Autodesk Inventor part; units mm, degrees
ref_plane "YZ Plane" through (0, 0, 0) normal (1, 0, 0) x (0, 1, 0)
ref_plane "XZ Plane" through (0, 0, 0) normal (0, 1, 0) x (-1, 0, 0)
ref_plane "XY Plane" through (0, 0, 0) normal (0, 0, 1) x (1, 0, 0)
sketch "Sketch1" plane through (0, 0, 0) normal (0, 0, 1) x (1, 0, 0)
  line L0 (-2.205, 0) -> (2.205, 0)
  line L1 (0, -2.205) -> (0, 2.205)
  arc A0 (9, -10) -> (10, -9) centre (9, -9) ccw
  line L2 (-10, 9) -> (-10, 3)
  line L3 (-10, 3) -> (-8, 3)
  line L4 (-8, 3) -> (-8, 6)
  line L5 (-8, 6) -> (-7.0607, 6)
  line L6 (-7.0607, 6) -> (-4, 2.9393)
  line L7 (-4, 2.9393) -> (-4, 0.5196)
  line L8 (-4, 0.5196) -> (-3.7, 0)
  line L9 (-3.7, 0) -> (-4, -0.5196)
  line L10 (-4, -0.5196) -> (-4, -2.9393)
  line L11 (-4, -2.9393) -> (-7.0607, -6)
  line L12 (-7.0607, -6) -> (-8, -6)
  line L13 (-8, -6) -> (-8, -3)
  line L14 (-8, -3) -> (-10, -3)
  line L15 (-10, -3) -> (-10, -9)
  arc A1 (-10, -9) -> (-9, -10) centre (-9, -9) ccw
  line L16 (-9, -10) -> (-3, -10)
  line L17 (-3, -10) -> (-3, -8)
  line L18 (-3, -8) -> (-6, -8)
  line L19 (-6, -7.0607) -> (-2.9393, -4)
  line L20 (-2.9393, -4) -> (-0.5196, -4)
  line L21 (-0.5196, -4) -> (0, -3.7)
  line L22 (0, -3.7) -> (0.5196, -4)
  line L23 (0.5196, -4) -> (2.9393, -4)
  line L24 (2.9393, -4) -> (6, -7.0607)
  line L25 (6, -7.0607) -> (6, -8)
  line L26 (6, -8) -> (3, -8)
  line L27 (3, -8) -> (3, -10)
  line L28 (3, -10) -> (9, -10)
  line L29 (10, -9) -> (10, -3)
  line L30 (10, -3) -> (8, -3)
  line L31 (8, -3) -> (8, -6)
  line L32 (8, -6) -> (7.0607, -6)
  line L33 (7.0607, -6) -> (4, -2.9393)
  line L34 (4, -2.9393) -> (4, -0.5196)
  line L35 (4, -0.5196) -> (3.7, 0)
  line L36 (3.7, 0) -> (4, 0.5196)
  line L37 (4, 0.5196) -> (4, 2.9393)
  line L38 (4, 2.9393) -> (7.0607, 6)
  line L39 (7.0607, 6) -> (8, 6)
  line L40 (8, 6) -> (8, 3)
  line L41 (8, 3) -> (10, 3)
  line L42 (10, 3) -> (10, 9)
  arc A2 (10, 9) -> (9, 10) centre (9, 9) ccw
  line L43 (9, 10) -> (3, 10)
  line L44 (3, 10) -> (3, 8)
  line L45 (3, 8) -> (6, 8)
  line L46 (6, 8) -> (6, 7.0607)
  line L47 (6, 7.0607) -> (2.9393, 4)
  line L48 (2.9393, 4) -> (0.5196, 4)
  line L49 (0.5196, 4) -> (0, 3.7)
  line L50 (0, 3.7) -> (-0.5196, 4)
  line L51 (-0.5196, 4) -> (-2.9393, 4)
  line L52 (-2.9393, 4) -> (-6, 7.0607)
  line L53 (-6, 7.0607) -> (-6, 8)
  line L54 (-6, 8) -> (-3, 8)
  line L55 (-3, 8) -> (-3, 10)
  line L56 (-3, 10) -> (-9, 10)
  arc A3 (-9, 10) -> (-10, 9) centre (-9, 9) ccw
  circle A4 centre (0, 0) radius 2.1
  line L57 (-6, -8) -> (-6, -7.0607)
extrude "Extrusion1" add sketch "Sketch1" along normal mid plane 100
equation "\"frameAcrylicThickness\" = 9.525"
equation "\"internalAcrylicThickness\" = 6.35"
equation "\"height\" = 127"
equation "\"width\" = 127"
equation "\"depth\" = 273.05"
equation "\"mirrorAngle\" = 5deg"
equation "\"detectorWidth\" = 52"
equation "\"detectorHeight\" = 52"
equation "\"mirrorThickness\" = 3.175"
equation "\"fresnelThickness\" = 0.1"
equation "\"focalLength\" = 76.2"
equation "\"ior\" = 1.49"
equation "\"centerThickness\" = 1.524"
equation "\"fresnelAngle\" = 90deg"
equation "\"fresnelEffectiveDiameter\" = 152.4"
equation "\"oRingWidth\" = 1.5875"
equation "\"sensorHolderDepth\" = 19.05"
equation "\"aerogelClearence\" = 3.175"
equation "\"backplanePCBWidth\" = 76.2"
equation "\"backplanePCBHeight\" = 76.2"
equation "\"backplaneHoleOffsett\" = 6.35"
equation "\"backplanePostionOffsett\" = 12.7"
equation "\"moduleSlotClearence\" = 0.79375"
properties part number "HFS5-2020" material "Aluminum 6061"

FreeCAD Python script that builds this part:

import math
import FreeCAD as App
import Part
import Sketcher

V = App.Vector
Q = App.Units.Quantity

doc = App.newDocument("Part")
body = doc.addObject("PartDesign::Body", "Body")

sketch1 = body.newObject("Sketcher::SketchObject", "Sketch")
sketch1.AttachmentSupport = (doc.getObject("XY_Plane"), [""])
sketch1.MapMode = "FlatFace"
sketch1.addGeometry(Part.LineSegment(V(3, -10, 0), V(9, -10, 0)), False)
sketch1.addGeometry(Part.ArcOfCircle(Part.Circle(V(9, -9, 0), V(0, 0, 1), 1), math.radians(-90), math.radians(0)), False)
sketch1.addGeometry(Part.LineSegment(V(10, -9, 0), V(10, -3, 0)), False)
sketch1.addGeometry(Part.LineSegment(V(10, -3, 0), V(8, -3, 0)), False)
sketch1.addGeometry(Part.LineSegment(V(8, -3, 0), V(8, -6, 0)), False)
sketch1.addGeometry(Part.LineSegment(V(8, -6, 0), V(7.1, -6, 0)), False)
sketch1.addGeometry(Part.LineSegment(V(7.1, -6, 0), V(4, -2.9, 0)), False)
sketch1.addGeometry(Part.LineSegment(V(4, -2.9, 0), V(4, -0.5, 0)), False)
sketch1.addGeometry(Part.LineSegment(V(4, -0.5, 0), V(3.7, 0, 0)), False)
sketch1.addGeometry(Part.LineSegment(V(3.7, 0, 0), V(4, 0.5, 0)), False)
sketch1.addGeometry(Part.LineSegment(V(4, 0.5, 0), V(4, 2.9, 0)), False)
sketch1.addGeometry(Part.LineSegment(V(4, 2.9, 0), V(7.1, 6, 0)), False)
sketch1.addGeometry(Part.LineSegment(V(7.1, 6, 0), V(8, 6, 0)), False)
sketch1.addGeometry(Part.LineSegment(V(8, 6, 0), V(8, 3, 0)), False)
sketch1.addGeometry(Part.LineSegment(V(8, 3, 0), V(10, 3, 0)), False)
sketch1.addGeometry(Part.LineSegment(V(10, 3, 0), V(10, 9, 0)), False)
sketch1.addGeometry(Part.ArcOfCircle(Part.Circle(V(9, 9, 0), V(0, 0, 1), 1), math.radians(0), math.radians(90)), False)
sketch1.addGeometry(Part.LineSegment(V(9, 10, 0), V(3, 10, 0)), False)
sketch1.addGeometry(Part.LineSegment(V(3, 10, 0), V(3, 8, 0)), False)
sketch1.addGeometry(Part.LineSegment(V(3, 8, 0), V(6, 8, 0)), False)
sketch1.addGeometry(Part.LineSegment(V(6, 8, 0), V(6, 7.1, 0)), False)
sketch1.addGeometry(Part.LineSegment(V(6, 7.1, 0), V(2.9, 4, 0)), False)
sketch1.addGeometry(Part.LineSegment(V(2.9, 4, 0), V(0.5, 4, 0)), False)
sketch1.addGeometry(Part.LineSegment(V(0.5, 4, 0), V(0, 3.7, 0)), False)
sketch1.addGeometry(Part.LineSegment(V(0, 3.7, 0), V(-0.5, 4, 0)), False)
sketch1.addGeometry(Part.LineSegment(V(-0.5, 4, 0), V(-2.9, 4, 0)), False)
sketch1.addGeometry(Part.LineSegment(V(-2.9, 4, 0), V(-6, 7.1, 0)), False)
sketch1.addGeometry(Part.LineSegment(V(-6, 7.1, 0), V(-6, 8, 0)), False)
sketch1.addGeometry(Part.LineSegment(V(-6, 8, 0), V(-3, 8, 0)), False)
sketch1.addGeometry(Part.LineSegment(V(-3, 8, 0), V(-3, 10, 0)), False)
sketch1.addGeometry(Part.LineSegment(V(-3, 10, 0), V(-9, 10, 0)), False)
sketch1.addGeometry(Part.ArcOfCircle(Part.Circle(V(-9, 9, 0), V(0, 0, 1), 1), math.radians(90), math.radians(180)), False)
sketch1.addGeometry(Part.LineSegment(V(-10, 9, 0), V(-10, 3, 0)), False)
sketch1.addGeometry(Part.LineSegment(V(-10, 3, 0), V(-8, 3, 0)), False)
sketch1.addGeometry(Part.LineSegment(V(-8, 3, 0), V(-8, 6, 0)), False)
sketch1.addGeometry(Part.LineSegment(V(-8, 6, 0), V(-7.1, 6, 0)), False)
sketch1.addGeometry(Part.LineSegment(V(-7.1, 6, 0), V(-4, 2.9, 0)), False)
sketch1.addGeometry(Part.LineSegment(V(-4, 2.9, 0), V(-4, 0.5, 0)), False)
sketch1.addGeometry(Part.LineSegment(V(-4, 0.5, 0), V(-3.7, 0, 0)), False)
sketch1.addGeometry(Part.LineSegment(V(-3.7, 0, 0), V(-4, -0.5, 0)), False)
sketch1.addGeometry(Part.LineSegment(V(-4, -0.5, 0), V(-4, -2.9, 0)), False)
sketch1.addGeometry(Part.LineSegment(V(-4, -2.9, 0), V(-7.1, -6, 0)), False)
sketch1.addGeometry(Part.LineSegment(V(-7.1, -6, 0), V(-8, -6, 0)), False)
sketch1.addGeometry(Part.LineSegment(V(-8, -6, 0), V(-8, -3, 0)), False)
sketch1.addGeometry(Part.LineSegment(V(-8, -3, 0), V(-10, -3, 0)), False)
sketch1.addGeometry(Part.LineSegment(V(-10, -3, 0), V(-10, -9, 0)), False)
sketch1.addGeometry(Part.ArcOfCircle(Part.Circle(V(-9, -9, 0), V(0, 0, 1), 1), math.radians(180), math.radians(270)), False)
sketch1.addGeometry(Part.LineSegment(V(-9, -10, 0), V(-3, -10, 0)), False)
sketch1.addGeometry(Part.LineSegment(V(-3, -10, 0), V(-3, -8, 0)), False)
sketch1.addGeometry(Part.LineSegment(V(-3, -8, 0), V(-6, -8, 0)), False)
sketch1.addGeometry(Part.LineSegment(V(-6, -8, 0), V(-6, -7.1, 0)), False)
sketch1.addGeometry(Part.LineSegment(V(-6, -7.1, 0), V(-2.9, -4, 0)), False)
sketch1.addGeometry(Part.LineSegment(V(-2.9, -4, 0), V(-0.5, -4, 0)), False)
sketch1.addGeometry(Part.LineSegment(V(-0.5, -4, 0), V(0, -3.7, 0)), False)
sketch1.addGeometry(Part.LineSegment(V(0, -3.7, 0), V(0.5, -4, 0)), False)
sketch1.addGeometry(Part.LineSegment(V(0.5, -4, 0), V(2.9, -4, 0)), False)
sketch1.addGeometry(Part.LineSegment(V(2.9, -4, 0), V(6, -7.1, 0)), False)
sketch1.addGeometry(Part.LineSegment(V(6, -7.1, 0), V(6, -8, 0)), False)
sketch1.addGeometry(Part.LineSegment(V(6, -8, 0), V(3, -8, 0)), False)
sketch1.addGeometry(Part.LineSegment(V(3, -8, 0), V(3, -10, 0)), False)
sketch1.addGeometry(Part.Circle(V(0, 0, 0), V(0, 0, 1), 2.1), False)
sketch1.addConstraint(Sketcher.Constraint("Tangent", 0, 2, 1, 1))
sketch1.addConstraint(Sketcher.Constraint("Tangent", 1, 2, 2, 1))
sketch1.addConstraint(Sketcher.Constraint("Coincident", 2, 2, 3, 1))
sketch1.addConstraint(Sketcher.Constraint("Coincident", 3, 2, 4, 1))
sketch1.addConstraint(Sketcher.Constraint("Coincident", 4, 2, 5, 1))
sketch1.addConstraint(Sketcher.Constraint("Coincident", 5, 2, 6, 1))
sketch1.addConstraint(Sketcher.Constraint("Coincident", 6, 2, 7, 1))
sketch1.addConstraint(Sketcher.Constraint("Coincident", 7, 2, 8, 1))
sketch1.addConstraint(Sketcher.Constraint("Coincident", 8, 2, 9, 1))
sketch1.addConstraint(Sketcher.Constraint("Coincident", 9, 2, 10, 1))
sketch1.addConstraint(Sketcher.Constraint("Coincident", 10, 2, 11, 1))
sketch1.addConstraint(Sketcher.Constraint("Coincident", 11, 2, 12, 1))
sketch1.addConstraint(Sketcher.Constraint("Coincident", 12, 2, 13, 1))
sketch1.addConstraint(Sketcher.Constraint("Coincident", 13, 2, 14, 1))
sketch1.addConstraint(Sketcher.Constraint("Coincident", 14, 2, 15, 1))
sketch1.addConstraint(Sketcher.Constraint("Tangent", 15, 2, 16, 1))
sketch1.addConstraint(Sketcher.Constraint("Tangent", 16, 2, 17, 1))
sketch1.addConstraint(Sketcher.Constraint("Coincident", 17, 2, 18, 1))
sketch1.addConstraint(Sketcher.Constraint("Coincident", 18, 2, 19, 1))
sketch1.addConstraint(Sketcher.Constraint("Coincident", 19, 2, 20, 1))
sketch1.addConstraint(Sketcher.Constraint("Coincident", 20, 2, 21, 1))
sketch1.addConstraint(Sketcher.Constraint("Coincident", 21, 2, 22, 1))
sketch1.addConstraint(Sketcher.Constraint("Coincident", 22, 2, 23, 1))
sketch1.addConstraint(Sketcher.Constraint("Coincident", 23, 2, 24, 1))
sketch1.addConstraint(Sketcher.Constraint("Coincident", 24, 2, 25, 1))
sketch1.addConstraint(Sketcher.Constraint("Coincident", 25, 2, 26, 1))
sketch1.addConstraint(Sketcher.Constraint("Coincident", 26, 2, 27, 1))
sketch1.addConstraint(Sketcher.Constraint("Coincident", 27, 2, 28, 1))
sketch1.addConstraint(Sketcher.Constraint("Coincident", 28, 2, 29, 1))
sketch1.addConstraint(Sketcher.Constraint("Coincident", 29, 2, 30, 1))
sketch1.addConstraint(Sketcher.Constraint("Tangent", 30, 2, 31, 1))
sketch1.addConstraint(Sketcher.Constraint("Tangent", 31, 2, 32, 1))
sketch1.addConstraint(Sketcher.Constraint("Coincident", 32, 2, 33, 1))
sketch1.addConstraint(Sketcher.Constraint("Coincident", 33, 2, 34, 1))
sketch1.addConstraint(Sketcher.Constraint("Coincident", 34, 2, 35, 1))
sketch1.addConstraint(Sketcher.Constraint("Coincident", 35, 2, 36, 1))
sketch1.addConstraint(Sketcher.Constraint("Coincident", 36, 2, 37, 1))
sketch1.addConstraint(Sketcher.Constraint("Coincident", 37, 2, 38, 1))
sketch1.addConstraint(Sketcher.Constraint("Coincident", 38, 2, 39, 1))
sketch1.addConstraint(Sketcher.Constraint("Coincident", 39, 2, 40, 1))
sketch1.addConstraint(Sketcher.Constraint("Coincident", 40, 2, 41, 1))
sketch1.addConstraint(Sketcher.Constraint("Coincident", 41, 2, 42, 1))
sketch1.addConstraint(Sketcher.Constraint("Coincident", 42, 2, 43, 1))
sketch1.addConstraint(Sketcher.Constraint("Coincident", 43, 2, 44, 1))
sketch1.addConstraint(Sketcher.Constraint("Coincident", 44, 2, 45, 1))
sketch1.addConstraint(Sketcher.Constraint("Tangent", 45, 2, 46, 1))
sketch1.addConstraint(Sketcher.Constraint("Tangent", 46, 2, 47, 1))
sketch1.addConstraint(Sketcher.Constraint("Coincident", 47, 2, 48, 1))
sketch1.addConstraint(Sketcher.Constraint("Coincident", 48, 2, 49, 1))
sketch1.addConstraint(Sketcher.Constraint("Coincident", 49, 2, 50, 1))
sketch1.addConstraint(Sketcher.Constraint("Coincident", 50, 2, 51, 1))
sketch1.addConstraint(Sketcher.Constraint("Coincident", 51, 2, 52, 1))
sketch1.addConstraint(Sketcher.Constraint("Coincident", 52, 2, 53, 1))
sketch1.addConstraint(Sketcher.Constraint("Coincident", 53, 2, 54, 1))
sketch1.addConstraint(Sketcher.Constraint("Coincident", 54, 2, 55, 1))
sketch1.addConstraint(Sketcher.Constraint("Coincident", 55, 2, 56, 1))
sketch1.addConstraint(Sketcher.Constraint("Coincident", 56, 2, 57, 1))
sketch1.addConstraint(Sketcher.Constraint("Coincident", 57, 2, 58, 1))
sketch1.addConstraint(Sketcher.Constraint("Coincident", 58, 2, 59, 1))
sketch1.addConstraint(Sketcher.Constraint("Coincident", 59, 2, 0, 1))
sketch1.addConstraint(Sketcher.Constraint("Horizontal", 0))
sketch1.addConstraint(Sketcher.Constraint("Vertical", 2))
sketch1.addConstraint(Sketcher.Constraint("Horizontal", 3))
sketch1.addConstraint(Sketcher.Constraint("Vertical", 4))
sketch1.addConstraint(Sketcher.Constraint("Horizontal", 5))
sketch1.addConstraint(Sketcher.Constraint("Vertical", 7))
sketch1.addConstraint(Sketcher.Constraint("Vertical", 10))
sketch1.addConstraint(Sketcher.Constraint("Horizontal", 12))
sketch1.addConstraint(Sketcher.Constraint("Vertical", 13))
sketch1.addConstraint(Sketcher.Constraint("Horizontal", 14))
sketch1.addConstraint(Sketcher.Constraint("Vertical", 15))
sketch1.addConstraint(Sketcher.Constraint("Horizontal", 17))
sketch1.addConstraint(Sketcher.Constraint("Vertical", 18))
sketch1.addConstraint(Sketcher.Constraint("Horizontal", 19))
sketch1.addConstraint(Sketcher.Constraint("Vertical", 20))
sketch1.addConstraint(Sketcher.Constraint("Horizontal", 22))
sketch1.addConstraint(Sketcher.Constraint("Horizontal", 25))
sketch1.addConstraint(Sketcher.Constraint("Vertical", 27))
sketch1.addConstraint(Sketcher.Constraint("Horizontal", 28))
sketch1.addConstraint(Sketcher.Constraint("Vertical", 29))
sketch1.addConstraint(Sketcher.Constraint("Horizontal", 30))
sketch1.addConstraint(Sketcher.Constraint("Vertical", 32))
sketch1.addConstraint(Sketcher.Constraint("Horizontal", 33))
sketch1.addConstraint(Sketcher.Constraint("Vertical", 34))
sketch1.addConstraint(Sketcher.Constraint("Horizontal", 35))
sketch1.addConstraint(Sketcher.Constraint("Vertical", 37))
sketch1.addConstraint(Sketcher.Constraint("Vertical", 40))
sketch1.addConstraint(Sketcher.Constraint("Horizontal", 42))
sketch1.addConstraint(Sketcher.Constraint("Vertical", 43))
sketch1.addConstraint(Sketcher.Constraint("Horizontal", 44))
sketch1.addConstraint(Sketcher.Constraint("Vertical", 45))
sketch1.addConstraint(Sketcher.Constraint("Horizontal", 47))
sketch1.addConstraint(Sketcher.Constraint("Vertical", 48))
sketch1.addConstraint(Sketcher.Constraint("Horizontal", 49))
sketch1.addConstraint(Sketcher.Constraint("Vertical", 50))
sketch1.addConstraint(Sketcher.Constraint("Horizontal", 52))
sketch1.addConstraint(Sketcher.Constraint("Horizontal", 55))
sketch1.addConstraint(Sketcher.Constraint("Vertical", 57))
sketch1.addConstraint(Sketcher.Constraint("Horizontal", 58))
sketch1.addConstraint(Sketcher.Constraint("Vertical", 59))
sketch1.addConstraint(Sketcher.Constraint("Coincident", 60, 3, -1, 1))
sketch1.addConstraint(Sketcher.Constraint("Equal", 1, 16))
sketch1.addConstraint(Sketcher.Constraint("Equal", 16, 31))
sketch1.addConstraint(Sketcher.Constraint("Equal", 31, 46))
sketch1.addConstraint(Sketcher.Constraint("Symmetric", 1, 3, 31, 3, -1, 1))
sketch1.addConstraint(Sketcher.Constraint("Symmetric", 16, 3, 46, 3, -1, 1))
sketch1.addConstraint(Sketcher.Constraint("Symmetric", 3, 2, 33, 2, -1, 1))
sketch1.addConstraint(Sketcher.Constraint("Symmetric", 5, 2, 35, 2, -1, 1))
sketch1.addConstraint(Sketcher.Constraint("Symmetric", 6, 2, 36, 2, -1, 1))
sketch1.addConstraint(Sketcher.Constraint("Symmetric", 8, 2, 38, 2, -1, 1))
sketch1.addConstraint(Sketcher.Constraint("Symmetric", 9, 2, 39, 2, -1, 1))
sketch1.addConstraint(Sketcher.Constraint("Symmetric", 11, 2, 41, 2, -1, 1))
sketch1.addConstraint(Sketcher.Constraint("Symmetric", 13, 2, 43, 2, -1, 1))
sketch1.addConstraint(Sketcher.Constraint("Symmetric", 18, 2, 48, 2, -1, 1))
sketch1.addConstraint(Sketcher.Constraint("Symmetric", 20, 2, 50, 2, -1, 1))
sketch1.addConstraint(Sketcher.Constraint("Symmetric", 21, 2, 51, 2, -1, 1))
sketch1.addConstraint(Sketcher.Constraint("Symmetric", 23, 2, 53, 2, -1, 1))
sketch1.addConstraint(Sketcher.Constraint("Symmetric", 24, 2, 54, 2, -1, 1))
sketch1.addConstraint(Sketcher.Constraint("Symmetric", 26, 2, 56, 2, -1, 1))
sketch1.addConstraint(Sketcher.Constraint("Symmetric", 28, 2, 58, 2, -1, 1))
sketch1.addConstraint(Sketcher.Constraint("Symmetric", 16, 3, 31, 3, -2))
sketch1.addConstraint(Sketcher.Constraint("Symmetric", 22, 2, 24, 2, -2))
sketch1.addConstraint(Sketcher.Constraint("Symmetric", 20, 2, 26, 2, -2))
sketch1.addConstraint(Sketcher.Constraint("Symmetric", 18, 2, 28, 2, -2))
sketch1.addConstraint(Sketcher.Constraint("Symmetric", 13, 2, 33, 2, -2))
sketch1.addConstraint(Sketcher.Constraint("Symmetric", 11, 2, 35, 2, -2))
sketch1.addConstraint(Sketcher.Constraint("Symmetric", 10, 2, 36, 2, -2))
sketch1.addConstraint(Sketcher.Constraint("PointOnObject", 8, 2, -1))
sketch1.addConstraint(Sketcher.Constraint("PointOnObject", 23, 2, -2))
sketch1.addConstraint(Sketcher.Constraint("Perpendicular", 6, 11))
sketch1.addConstraint(Sketcher.Constraint("Parallel", 11, 21))
sketch1.addConstraint(Sketcher.Constraint("Perpendicular", 8, 23))
sketch1.addConstraint(Sketcher.Constraint("Perpendicular", 9, 24))
sketch1.addConstraint(Sketcher.Constraint("Perpendicular", 21, 26))
sketch1.addConstraint(Sketcher.Constraint("Perpendicular", 23, 38))
sketch1.addConstraint(Sketcher.Constraint("Perpendicular", 36, 41))
sketch1.addConstraint(Sketcher.Constraint("Perpendicular", 38, 53))
sketch1.addConstraint(Sketcher.Constraint("Perpendicular", 51, 56))
sketch1.addConstraint(Sketcher.Constraint("Equal", 47, 2))
sketch1.addConstraint(Sketcher.Constraint("Equal", 58, 4))
sketch1.addConstraint(Sketcher.Constraint("Equal", 55, 7))
sketch1.addConstraint(Sketcher.Constraint("Equal", 44, 18))
sketch1.addConstraint(Sketcher.Constraint("Equal", 42, 20))
sketch1.addConstraint(Sketcher.Constraint("Equal", 11, 21))
sketch1.addConstraint(Sketcher.Constraint("Equal", 9, 23))
sketch1.addConstraint(Sketcher.Constraint("Radius", 1, 1.0))
sketch1.addConstraint(Sketcher.Constraint("Diameter", 60, 4.2))
sketch1.addConstraint(Sketcher.Constraint("DistanceX", 0, 1, 0, 2, 6.0))
sketch1.addConstraint(Sketcher.Constraint("DistanceX", 3, 2, 3, 1, 2.0))
sketch1.addConstraint(Sketcher.Constraint("DistanceX", 19, 1, 19, 2, 3.0))
sketch1.addConstraint(Sketcher.Constraint("Angle", 8, Q("120.0007 deg")))
sketch1.addConstraint(Sketcher.Constraint("DistanceX", -1, 1, 1, 3, 9.0))
sketch1.addConstraint(Sketcher.Constraint("DistanceX", -1, 1, 6, 2, 4.0))
sketch1.addConstraint(Sketcher.Constraint("Distance", 8, 0.6))
sketch1.addConstraint(Sketcher.Constraint("DistanceX", 5, 2, 5, 1, 0.9393))
pad1 = body.newObject("PartDesign::Pad", "Pad")
pad1.Profile = sketch1
pad1.Length = 100
pad1.Midplane = True

doc.recompute()
